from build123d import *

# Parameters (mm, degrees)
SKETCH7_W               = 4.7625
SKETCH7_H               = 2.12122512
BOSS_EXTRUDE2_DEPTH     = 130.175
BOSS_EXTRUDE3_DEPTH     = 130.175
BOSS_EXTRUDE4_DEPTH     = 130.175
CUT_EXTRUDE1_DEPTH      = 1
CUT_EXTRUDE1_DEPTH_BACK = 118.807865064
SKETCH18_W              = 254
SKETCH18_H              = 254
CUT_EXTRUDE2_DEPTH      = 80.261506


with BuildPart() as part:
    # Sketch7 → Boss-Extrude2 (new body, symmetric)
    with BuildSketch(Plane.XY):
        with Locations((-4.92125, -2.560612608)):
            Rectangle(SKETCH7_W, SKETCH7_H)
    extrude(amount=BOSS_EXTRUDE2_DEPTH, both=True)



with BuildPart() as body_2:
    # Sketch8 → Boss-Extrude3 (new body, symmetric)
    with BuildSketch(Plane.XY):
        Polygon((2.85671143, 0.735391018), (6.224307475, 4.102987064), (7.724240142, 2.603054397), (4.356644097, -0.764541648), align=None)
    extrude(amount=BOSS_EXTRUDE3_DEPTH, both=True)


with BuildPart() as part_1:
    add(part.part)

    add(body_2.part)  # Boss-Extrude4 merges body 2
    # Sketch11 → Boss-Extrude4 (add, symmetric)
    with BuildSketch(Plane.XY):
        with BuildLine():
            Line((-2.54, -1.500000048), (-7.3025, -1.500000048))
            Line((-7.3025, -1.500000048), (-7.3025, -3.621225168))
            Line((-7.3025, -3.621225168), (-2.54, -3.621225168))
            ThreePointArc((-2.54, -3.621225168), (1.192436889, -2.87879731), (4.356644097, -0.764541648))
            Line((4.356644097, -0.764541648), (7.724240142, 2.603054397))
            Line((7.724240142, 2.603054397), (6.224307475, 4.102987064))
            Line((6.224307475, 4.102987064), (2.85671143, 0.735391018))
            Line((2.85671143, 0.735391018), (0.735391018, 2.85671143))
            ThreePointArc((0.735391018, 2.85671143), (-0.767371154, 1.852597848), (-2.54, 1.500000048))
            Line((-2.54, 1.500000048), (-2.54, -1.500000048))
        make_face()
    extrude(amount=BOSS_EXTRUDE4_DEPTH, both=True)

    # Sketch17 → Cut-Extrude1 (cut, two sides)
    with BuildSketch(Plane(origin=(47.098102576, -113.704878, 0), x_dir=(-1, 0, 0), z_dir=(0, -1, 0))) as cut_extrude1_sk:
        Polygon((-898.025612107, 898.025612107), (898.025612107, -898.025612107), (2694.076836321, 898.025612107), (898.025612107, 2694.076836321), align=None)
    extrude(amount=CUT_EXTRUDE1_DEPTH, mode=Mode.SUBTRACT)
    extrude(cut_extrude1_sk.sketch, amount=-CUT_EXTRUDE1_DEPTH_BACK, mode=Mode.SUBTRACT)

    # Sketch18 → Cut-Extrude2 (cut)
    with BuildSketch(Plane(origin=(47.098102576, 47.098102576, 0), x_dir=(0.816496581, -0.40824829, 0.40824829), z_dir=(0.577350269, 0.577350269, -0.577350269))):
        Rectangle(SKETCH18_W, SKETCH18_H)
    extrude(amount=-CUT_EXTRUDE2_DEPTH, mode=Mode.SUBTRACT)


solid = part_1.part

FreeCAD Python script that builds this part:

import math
import FreeCAD as App
import Part
import Sketcher
Q = App.Units.Quantity

doc = App.newDocument("Part")
body = doc.addObject("PartDesign::Body", "Body")

# Sketch on XY plane
sketch1 = body.newObject("Sketcher::SketchObject", "Sketch")
sketch1.AttachmentSupport = (doc.getObject("XY_Plane"), [""])
sketch1.MapMode = "FlatFace"
sketch1.addGeometry([
    Part.LineSegment(App.Vector(-7.3, -1.5, 0), App.Vector(-7.3, -3.6, 0)),
    Part.LineSegment(App.Vector(-7.3, -3.6, 0), App.Vector(-2.5, -3.6, 0)),
    Part.LineSegment(App.Vector(-2.5, -3.6, 0), App.Vector(-2.5, -1.5, 0)),
    Part.LineSegment(App.Vector(-2.5, -1.5, 0), App.Vector(-7.3, -1.5, 0)),
], False)
sketch1.addConstraint([
    Sketcher.Constraint("Coincident", 0, 2, 1, 1),
    Sketcher.Constraint("Coincident", 1, 2, 2, 1),
    Sketcher.Constraint("Coincident", 2, 2, 3, 1),
    Sketcher.Constraint("Coincident", 3, 2, 0, 1),
    Sketcher.Constraint("Vertical", 0),
    Sketcher.Constraint("Horizontal", 1),
    Sketcher.Constraint("Vertical", 2),
    Sketcher.Constraint("Horizontal", 3),
    Sketcher.Constraint("DistanceX", 1, 2, -1, 1, Q("0.1 in")),
    Sketcher.Constraint("DistanceX", 1, 1, 1, 2, Q("0.1875 in")),
    Sketcher.Constraint("DistanceY", 2, 2, -1, 1, 1.5),
    Sketcher.Constraint("DistanceY", 0, 2, 0, 1, 2.121225),
])
pad1 = body.newObject("PartDesign::Pad", "Pad")
pad1.Profile = sketch1
pad1.Length = Q("10.25 in")
pad1.Midplane = True
body2 = doc.addObject("PartDesign::Body", "Body001")

# Sketch on XY plane
sketch2 = body2.newObject("Sketcher::SketchObject", "Sketch001")
sketch2.AttachmentSupport = (doc.getObject("XY_Plane001"), [""])
sketch2.MapMode = "FlatFace"
sketch2.addGeometry([
    Part.LineSegment(App.Vector(6.2, 4.1, 0), App.Vector(2.9, 0.7, 0)),
    Part.LineSegment(App.Vector(2.9, 0.7, 0), App.Vector(4.4, -0.8, 0)),
    Part.LineSegment(App.Vector(4.4, -0.8, 0), App.Vector(7.7, 2.6, 0)),
    Part.LineSegment(App.Vector(7.7, 2.6, 0), App.Vector(6.2, 4.1, 0)),
], False)
sketch2.addConstraint([
    Sketcher.Constraint("Coincident", 0, 2, 1, 1),
    Sketcher.Constraint("Coincident", 1, 2, 2, 1),
    Sketcher.Constraint("Coincident", 2, 2, 3, 1),
    Sketcher.Constraint("Coincident", 3, 2, 0, 1),
    Sketcher.Constraint("Perpendicular", 0, 1),
    Sketcher.Constraint("Perpendicular", 1, 2),
    Sketcher.Constraint("Perpendicular", 2, 3),
    Sketcher.Constraint("Angle", 0, Q("-135 deg")),
    Sketcher.Constraint("Distance", 0, Q("0.1875 in")),
    Sketcher.Constraint("DistanceY", 1, 2, -1, 1, Q("0.0301001 in")),
    Sketcher.Constraint("DistanceX", -1, 1, 0, 2, 2.856711),
    Sketcher.Constraint("DistanceY", -1, 1, 0, 2, 0.735391),
])
pad2 = body2.newObject("PartDesign::Pad", "Pad001")
pad2.Profile = sketch2
pad2.Length = Q("10.25 in")
pad2.Midplane = True
body.AllowCompound = True
doc.recompute()

boolean = body.newObject("PartDesign::Boolean", "Boolean")
boolean.Type = "Fuse"
boolean.addObjects([body2])

# Sketch on XY plane
sketch3 = body.newObject("Sketcher::SketchObject", "Sketch002")
sketch3.AttachmentSupport = (doc.getObject("XY_Plane"), [""])
sketch3.MapMode = "FlatFace"
sketch3.addGeometry([
    Part.LineSegment(App.Vector(-2.5, -1.5, 0), App.Vector(-7.3, -1.5, 0)),  # 0
    Part.LineSegment(App.Vector(-7.3, -1.5, 0), App.Vector(-7.3, -3.6, 0)),  # 1
    Part.LineSegment(App.Vector(-7.3, -3.6, 0), App.Vector(-2.5, -3.6, 0)),  # 2
    Part.ArcOfCircle(Part.Circle(App.Vector(-2.5, 6.1, 0), App.Vector(0, 0, 1), 9.8), math.radians(-90), math.radians(-45)),  # 3
    Part.LineSegment(App.Vector(4.4, -0.8, 0), App.Vector(7.7, 2.6, 0)),  # 4
    Part.LineSegment(App.Vector(7.7, 2.6, 0), App.Vector(6.2, 4.1, 0)),  # 5
    Part.LineSegment(App.Vector(6.2, 4.1, 0), App.Vector(2.9, 0.7, 0)),  # 6
    Part.LineSegment(App.Vector(2.9, 0.7, 0), App.Vector(0.7, 2.9, 0)),  # 7
    Part.ArcOfCircle(Part.Circle(App.Vector(-2.5, 6.1, 0), App.Vector(0, 0, 1), 4.6), math.radians(-90), math.radians(-45)),  # 8
    Part.LineSegment(App.Vector(-2.5, 1.5, 0), App.Vector(-2.5, -1.5, 0)),  # 9
], False)
sketch3.addConstraint([
    Sketcher.Constraint("Coincident", 0, 2, 1, 1),
    Sketcher.Constraint("Coincident", 1, 2, 2, 1),
    Sketcher.Constraint("Tangent", 2, 2, 3, 1),
    Sketcher.Constraint("Tangent", 3, 2, 4, 1),
    Sketcher.Constraint("Coincident", 4, 2, 5, 1),
    Sketcher.Constraint("Coincident", 5, 2, 6, 1),
    Sketcher.Constraint("Coincident", 6, 2, 7, 1),
    Sketcher.Constraint("Coincident", 7, 2, 8, 2),
    Sketcher.Constraint("Coincident", 8, 1, 9, 1),
    Sketcher.Constraint("Coincident", 9, 2, 0, 1),
    Sketcher.Constraint("Horizontal", 0),
    Sketcher.Constraint("Vertical", 1),
    Sketcher.Constraint("Horizontal", 2),
    Sketcher.Constraint("Vertical", 9),
    Sketcher.Constraint("Coincident", 8, 3, 3, 3),
    Sketcher.Constraint("Perpendicular", 4, 5),
    Sketcher.Constraint("Perpendicular", 5, 6),
    Sketcher.Constraint("Perpendicular", 6, 7),
    Sketcher.Constraint("Vertical", 2, 2, 8, 1),
    Sketcher.Constraint("Equal", 4, 6),
    Sketcher.Constraint("Angle", 4, Q("45 deg")),
    Sketcher.Constraint("DistanceX", 3, 3, -1, 1, Q("0.1 in")),
    Sketcher.Constraint("DistanceX", 0, 2, 0, 1, Q("0.1875 in")),
    Sketcher.Constraint("Distance", 4, Q("0.1875 in")),
    Sketcher.Constraint("DistanceY", 9, 2, 9, 1, 3.0),
    Sketcher.Constraint("DistanceY", 3, 2, -1, 1, Q("0.0301001 in")),
    Sketcher.Constraint("Radius", 3, 9.753328),
    Sketcher.Constraint("Radius", 8, 4.632102),
    Sketcher.Constraint("Distance", 7, 3.0),
])
pad3 = body.newObject("PartDesign::Pad", "Pad002")
pad3.Profile = sketch3
pad3.Length = Q("10.25 in")
pad3.Midplane = True

# Sketch on XZ plane
sketch4 = body.newObject("Sketcher::SketchObject", "Sketch003")
sketch4.AttachmentSupport = (doc.getObject("XZ_Plane"), [""])
sketch4.MapMode = "FlatFace"
sketch4.AttachmentOffset = App.Placement(App.Vector(0, 0, 113.704878), App.Rotation())
sketch4.addGeometry([
    Part.LineSegment(App.Vector(945, -898, 0), App.Vector(-851, 898, 0)),
    Part.LineSegment(App.Vector(-851, 898, 0), App.Vector(-2647, -898, 0)),
    Part.LineSegment(App.Vector(-2647, -898, 0), App.Vector(-851, -2694, 0)),
    Part.LineSegment(App.Vector(-851, -2694, 0), App.Vector(945, -898, 0)),
], False)
sketch4.addConstraint([
    Sketcher.Constraint("Coincident", 0, 2, 1, 1),
    Sketcher.Constraint("Coincident", 1, 2, 2, 1),
    Sketcher.Constraint("Coincident", 2, 2, 3, 1),
    Sketcher.Constraint("Coincident", 3, 2, 0, 1),
    Sketcher.Constraint("Perpendicular", 0, 1),
    Sketcher.Constraint("Perpendicular", 1, 2),
    Sketcher.Constraint("Perpendicular", 2, 3),
    Sketcher.Constraint("Horizontal", 1, 2, 3, 2),
    Sketcher.Constraint("Vertical", 0, 2, 2, 2),
    Sketcher.Constraint("Distance", 0, Q("100 in")),
    Sketcher.Constraint("DistanceX", 0, 2, -1, 1, 850.92751),
    Sketcher.Constraint("DistanceY", -1, 1, 0, 2, 898.025612),
])
pocket1 = body.newObject("PartDesign::Pocket", "Pocket")
pocket1.Profile = sketch4
pocket1.Type = "ThroughAll"
pocket1.Midplane = True

# Sketch on an angled plane
sketch5 = body.newObject("Sketcher::SketchObject", "Sketch004")
sketch5.Placement = App.Placement(App.Vector(47.098103, 47.098103, 0), App.Rotation(App.Vector(0.816496581, -0.40824829, 0.40824829), App.Vector(0, -0.707106781, -0.707106781), App.Vector(0.577350269, 0.577350269, -0.577350269), "ZXY"))
sketch5.addGeometry([
    Part.LineSegment(App.Vector(-127, 127, 0), App.Vector(-127, -127, 0)),
    Part.LineSegment(App.Vector(-127, -127, 0), App.Vector(127, -127, 0)),
    Part.LineSegment(App.Vector(127, -127, 0), App.Vector(127, 127, 0)),
    Part.LineSegment(App.Vector(127, 127, 0), App.Vector(-127, 127, 0)),
], False)
sketch5.addConstraint([
    Sketcher.Constraint("Coincident", 0, 2, 1, 1),
    Sketcher.Constraint("Coincident", 1, 2, 2, 1),
    Sketcher.Constraint("Coincident", 2, 2, 3, 1),
    Sketcher.Constraint("Coincident", 3, 2, 0, 1),
    Sketcher.Constraint("Vertical", 0),
    Sketcher.Constraint("Horizontal", 1),
    Sketcher.Constraint("Vertical", 2),
    Sketcher.Constraint("Horizontal", 3),
    Sketcher.Constraint("Symmetric", 0, 2, 2, 2, -1, 1),
    Sketcher.Constraint("Equal", 3, 0),
    Sketcher.Constraint("DistanceX", 1, 1, 1, 2, Q("10 in")),
])
pocket2 = body.newObject("PartDesign::Pocket", "Pocket001")
pocket2.Profile = sketch5
pocket2.Length = 80.261506

doc.recompute()
